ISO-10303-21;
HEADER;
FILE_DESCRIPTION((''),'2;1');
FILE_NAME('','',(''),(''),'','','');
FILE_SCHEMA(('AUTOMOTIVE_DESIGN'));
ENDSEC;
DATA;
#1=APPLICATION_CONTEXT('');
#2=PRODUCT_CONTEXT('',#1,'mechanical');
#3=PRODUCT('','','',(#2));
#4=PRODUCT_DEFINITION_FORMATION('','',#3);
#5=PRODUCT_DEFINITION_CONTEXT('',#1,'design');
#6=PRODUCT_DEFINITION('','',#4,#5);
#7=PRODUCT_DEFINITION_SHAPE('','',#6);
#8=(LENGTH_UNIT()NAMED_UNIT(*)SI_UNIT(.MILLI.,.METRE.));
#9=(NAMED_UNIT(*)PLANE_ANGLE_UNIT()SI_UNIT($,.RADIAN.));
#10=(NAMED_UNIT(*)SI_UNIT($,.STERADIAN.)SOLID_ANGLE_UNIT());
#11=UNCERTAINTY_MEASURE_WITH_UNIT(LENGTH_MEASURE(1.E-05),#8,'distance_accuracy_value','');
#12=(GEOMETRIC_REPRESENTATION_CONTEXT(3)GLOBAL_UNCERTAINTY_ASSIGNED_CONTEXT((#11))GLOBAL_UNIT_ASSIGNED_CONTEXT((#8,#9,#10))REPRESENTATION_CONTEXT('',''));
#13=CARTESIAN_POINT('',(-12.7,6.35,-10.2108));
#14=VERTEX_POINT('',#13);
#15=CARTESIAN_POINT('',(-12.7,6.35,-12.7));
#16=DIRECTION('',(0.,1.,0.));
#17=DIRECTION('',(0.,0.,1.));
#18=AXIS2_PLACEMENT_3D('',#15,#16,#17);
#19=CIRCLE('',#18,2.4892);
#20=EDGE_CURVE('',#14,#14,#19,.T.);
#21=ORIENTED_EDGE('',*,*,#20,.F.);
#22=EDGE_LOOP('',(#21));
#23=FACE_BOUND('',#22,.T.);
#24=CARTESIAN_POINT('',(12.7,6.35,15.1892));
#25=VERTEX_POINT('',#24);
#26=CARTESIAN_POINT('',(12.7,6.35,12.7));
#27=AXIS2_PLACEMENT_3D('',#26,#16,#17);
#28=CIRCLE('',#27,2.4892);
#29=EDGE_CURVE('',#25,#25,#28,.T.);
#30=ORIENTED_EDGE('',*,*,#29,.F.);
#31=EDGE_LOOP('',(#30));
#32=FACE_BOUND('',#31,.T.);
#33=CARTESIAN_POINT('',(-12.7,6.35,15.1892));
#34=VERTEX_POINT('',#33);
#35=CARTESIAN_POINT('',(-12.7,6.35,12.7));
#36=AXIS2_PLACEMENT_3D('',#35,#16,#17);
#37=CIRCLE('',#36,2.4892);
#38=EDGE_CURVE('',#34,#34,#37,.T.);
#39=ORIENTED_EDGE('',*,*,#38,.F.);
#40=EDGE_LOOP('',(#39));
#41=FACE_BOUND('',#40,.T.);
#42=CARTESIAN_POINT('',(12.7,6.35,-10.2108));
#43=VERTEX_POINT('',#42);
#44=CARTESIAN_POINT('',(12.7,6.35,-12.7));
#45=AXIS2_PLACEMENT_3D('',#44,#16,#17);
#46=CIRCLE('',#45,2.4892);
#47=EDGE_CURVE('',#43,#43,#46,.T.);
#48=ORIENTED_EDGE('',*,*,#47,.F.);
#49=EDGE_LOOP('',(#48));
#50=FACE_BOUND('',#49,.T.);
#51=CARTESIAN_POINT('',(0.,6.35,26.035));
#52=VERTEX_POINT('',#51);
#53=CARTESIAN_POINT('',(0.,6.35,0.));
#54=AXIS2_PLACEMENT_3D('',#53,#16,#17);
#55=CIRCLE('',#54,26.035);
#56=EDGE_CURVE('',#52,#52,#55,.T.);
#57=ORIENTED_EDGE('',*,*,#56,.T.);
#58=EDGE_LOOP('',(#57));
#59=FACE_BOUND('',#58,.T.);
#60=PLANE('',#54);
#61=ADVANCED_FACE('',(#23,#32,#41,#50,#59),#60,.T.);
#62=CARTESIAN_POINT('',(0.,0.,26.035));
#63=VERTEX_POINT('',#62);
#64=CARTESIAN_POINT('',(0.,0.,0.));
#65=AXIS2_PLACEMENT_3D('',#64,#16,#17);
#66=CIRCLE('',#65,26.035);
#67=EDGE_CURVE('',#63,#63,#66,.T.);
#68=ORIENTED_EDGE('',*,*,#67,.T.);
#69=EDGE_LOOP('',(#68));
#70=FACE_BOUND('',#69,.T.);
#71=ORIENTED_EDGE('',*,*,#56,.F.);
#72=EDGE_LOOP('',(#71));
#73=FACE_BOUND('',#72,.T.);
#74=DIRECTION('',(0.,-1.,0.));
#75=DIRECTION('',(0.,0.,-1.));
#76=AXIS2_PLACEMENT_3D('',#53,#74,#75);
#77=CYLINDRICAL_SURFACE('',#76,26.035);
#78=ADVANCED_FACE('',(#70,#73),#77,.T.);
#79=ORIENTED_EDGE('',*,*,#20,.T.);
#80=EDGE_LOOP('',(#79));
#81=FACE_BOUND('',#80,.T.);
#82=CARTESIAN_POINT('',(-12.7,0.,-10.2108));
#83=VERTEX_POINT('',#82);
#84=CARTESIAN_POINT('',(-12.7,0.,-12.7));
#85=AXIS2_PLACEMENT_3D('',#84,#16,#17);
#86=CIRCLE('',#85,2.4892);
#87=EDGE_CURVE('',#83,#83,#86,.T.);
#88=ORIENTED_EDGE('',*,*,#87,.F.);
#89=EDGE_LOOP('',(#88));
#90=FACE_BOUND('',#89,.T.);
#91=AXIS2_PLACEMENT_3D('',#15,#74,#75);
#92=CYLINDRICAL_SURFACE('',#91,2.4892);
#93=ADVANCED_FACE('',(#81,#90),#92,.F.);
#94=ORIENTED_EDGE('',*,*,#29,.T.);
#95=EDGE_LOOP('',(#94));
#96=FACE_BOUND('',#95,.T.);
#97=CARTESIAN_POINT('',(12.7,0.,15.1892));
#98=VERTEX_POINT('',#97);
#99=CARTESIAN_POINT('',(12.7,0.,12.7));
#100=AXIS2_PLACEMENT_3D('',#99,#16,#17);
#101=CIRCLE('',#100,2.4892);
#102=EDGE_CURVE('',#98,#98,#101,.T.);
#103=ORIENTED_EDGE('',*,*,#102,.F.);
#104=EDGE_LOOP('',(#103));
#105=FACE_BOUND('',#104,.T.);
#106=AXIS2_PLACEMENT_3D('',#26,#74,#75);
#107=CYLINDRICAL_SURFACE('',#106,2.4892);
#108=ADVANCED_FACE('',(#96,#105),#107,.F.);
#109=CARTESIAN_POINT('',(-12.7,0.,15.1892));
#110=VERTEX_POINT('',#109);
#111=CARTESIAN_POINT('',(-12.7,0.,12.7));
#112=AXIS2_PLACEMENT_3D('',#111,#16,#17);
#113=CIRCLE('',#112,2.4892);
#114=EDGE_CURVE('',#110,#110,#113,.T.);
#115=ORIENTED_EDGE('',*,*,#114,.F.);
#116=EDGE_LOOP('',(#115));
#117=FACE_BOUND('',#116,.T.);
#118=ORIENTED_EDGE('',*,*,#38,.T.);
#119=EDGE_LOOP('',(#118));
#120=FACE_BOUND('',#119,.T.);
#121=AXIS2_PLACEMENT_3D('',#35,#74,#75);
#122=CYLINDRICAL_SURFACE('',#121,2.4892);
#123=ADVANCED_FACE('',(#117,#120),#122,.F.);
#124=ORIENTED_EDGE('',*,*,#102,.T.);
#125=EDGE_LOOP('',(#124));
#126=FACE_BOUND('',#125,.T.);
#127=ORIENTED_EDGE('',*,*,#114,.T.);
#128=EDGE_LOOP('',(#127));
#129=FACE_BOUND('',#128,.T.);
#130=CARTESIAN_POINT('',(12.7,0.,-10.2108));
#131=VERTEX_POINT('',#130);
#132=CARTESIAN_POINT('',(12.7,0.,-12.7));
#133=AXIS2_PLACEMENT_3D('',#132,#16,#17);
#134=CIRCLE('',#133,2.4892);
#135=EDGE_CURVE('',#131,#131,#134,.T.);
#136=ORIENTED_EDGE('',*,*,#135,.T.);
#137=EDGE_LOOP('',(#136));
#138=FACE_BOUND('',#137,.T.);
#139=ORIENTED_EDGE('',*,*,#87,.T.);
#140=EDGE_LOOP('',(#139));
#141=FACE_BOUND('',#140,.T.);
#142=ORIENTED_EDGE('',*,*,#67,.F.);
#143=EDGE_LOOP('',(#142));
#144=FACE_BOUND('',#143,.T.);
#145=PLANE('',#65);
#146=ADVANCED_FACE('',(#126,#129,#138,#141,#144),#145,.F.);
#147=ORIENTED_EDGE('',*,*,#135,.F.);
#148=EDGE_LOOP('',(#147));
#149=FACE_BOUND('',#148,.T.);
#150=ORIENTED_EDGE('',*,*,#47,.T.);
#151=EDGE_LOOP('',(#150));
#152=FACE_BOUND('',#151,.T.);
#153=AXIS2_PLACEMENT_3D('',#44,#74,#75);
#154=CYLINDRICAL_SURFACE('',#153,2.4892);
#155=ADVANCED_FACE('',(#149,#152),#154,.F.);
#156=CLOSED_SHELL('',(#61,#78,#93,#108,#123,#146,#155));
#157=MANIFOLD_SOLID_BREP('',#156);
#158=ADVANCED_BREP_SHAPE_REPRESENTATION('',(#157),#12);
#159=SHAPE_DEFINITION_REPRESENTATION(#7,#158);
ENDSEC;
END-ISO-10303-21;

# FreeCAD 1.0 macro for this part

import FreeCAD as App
import Part
import Sketcher

V = App.Vector
Q = App.Units.Quantity

doc = App.newDocument("Part")
body = doc.addObject("PartDesign::Body", "Body")

sketch1 = body.newObject("Sketcher::SketchObject", "Sketch")
sketch1.AttachmentSupport = (doc.getObject("XZ_Plane"), [""])
sketch1.MapMode = "FlatFace"
sketch1.addGeometry([
    Part.Circle(V(0, 0, 0), V(0, 0, 1), 26),
    Part.Circle(V(-12.7, -12.7, 0), V(0, 0, 1), 2.5),
    Part.Circle(V(-12.7, 12.7, 0), V(0, 0, 1), 2.5),
    Part.Circle(V(12.7, -12.7, 0), V(0, 0, 1), 2.5),
    Part.Circle(V(12.7, 12.7, 0), V(0, 0, 1), 2.5),
], False)
sketch1.addConstraint([
    Sketcher.Constraint("Coincident", 0, 3, -1, 1),
    Sketcher.Constraint("Equal", 1, 2),
    Sketcher.Constraint("Equal", 2, 3),
    Sketcher.Constraint("Equal", 3, 4),
    Sketcher.Constraint("Symmetric", 2, 3, 3, 3, -1, 1),
    Sketcher.Constraint("Symmetric", 1, 3, 4, 3, -1, 1),
    Sketcher.Constraint("Symmetric", 1, 3, 3, 3, -2),
    Sketcher.Constraint("Diameter", 0, Q("2.05 in")),
    Sketcher.Constraint("Diameter", 1, Q("0.196 in")),
    Sketcher.Constraint("DistanceY", 1, 3, 2, 3, Q("1 in")),
    Sketcher.Constraint("DistanceX", 1, 3, 3, 3, Q("1 in")),
])
pad1 = body.newObject("PartDesign::Pad", "Pad")
pad1.Profile = sketch1
pad1.Length = Q("0.25 in")
pad1.Reversed = True

doc.recompute()
